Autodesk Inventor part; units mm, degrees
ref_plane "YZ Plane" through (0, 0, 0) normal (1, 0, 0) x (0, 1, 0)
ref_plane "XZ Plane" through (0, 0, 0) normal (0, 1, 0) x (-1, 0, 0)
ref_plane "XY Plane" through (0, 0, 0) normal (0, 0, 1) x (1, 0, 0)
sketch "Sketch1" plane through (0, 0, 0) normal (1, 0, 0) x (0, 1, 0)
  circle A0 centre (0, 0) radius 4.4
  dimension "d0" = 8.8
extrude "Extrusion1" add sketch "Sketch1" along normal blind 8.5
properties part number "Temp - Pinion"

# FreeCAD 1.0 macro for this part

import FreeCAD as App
import Part
import Sketcher
from FreeCAD import Vector
Q = App.Units.Quantity

doc = App.newDocument("Part")
body = doc.addObject("PartDesign::Body", "Body")

sketch1 = body.newObject("Sketcher::SketchObject", "Sketch")
sketch1.AttachmentSupport = (doc.getObject("YZ_Plane"), [""])
sketch1.MapMode = "FlatFace"
sketch1.addGeometry(Part.Circle(Vector(0, 0, 0), Vector(0, 0, 1), 4.4), False)
sketch1.addConstraint(Sketcher.Constraint("Coincident", 0, 3, -1, 1))
sketch1.addConstraint(Sketcher.Constraint("Diameter", 0, Q("8.8 mm")))
pad1 = body.newObject("PartDesign::Pad", "Pad")
pad1.Profile = sketch1
pad1.Length = 8.5

doc.recompute()
